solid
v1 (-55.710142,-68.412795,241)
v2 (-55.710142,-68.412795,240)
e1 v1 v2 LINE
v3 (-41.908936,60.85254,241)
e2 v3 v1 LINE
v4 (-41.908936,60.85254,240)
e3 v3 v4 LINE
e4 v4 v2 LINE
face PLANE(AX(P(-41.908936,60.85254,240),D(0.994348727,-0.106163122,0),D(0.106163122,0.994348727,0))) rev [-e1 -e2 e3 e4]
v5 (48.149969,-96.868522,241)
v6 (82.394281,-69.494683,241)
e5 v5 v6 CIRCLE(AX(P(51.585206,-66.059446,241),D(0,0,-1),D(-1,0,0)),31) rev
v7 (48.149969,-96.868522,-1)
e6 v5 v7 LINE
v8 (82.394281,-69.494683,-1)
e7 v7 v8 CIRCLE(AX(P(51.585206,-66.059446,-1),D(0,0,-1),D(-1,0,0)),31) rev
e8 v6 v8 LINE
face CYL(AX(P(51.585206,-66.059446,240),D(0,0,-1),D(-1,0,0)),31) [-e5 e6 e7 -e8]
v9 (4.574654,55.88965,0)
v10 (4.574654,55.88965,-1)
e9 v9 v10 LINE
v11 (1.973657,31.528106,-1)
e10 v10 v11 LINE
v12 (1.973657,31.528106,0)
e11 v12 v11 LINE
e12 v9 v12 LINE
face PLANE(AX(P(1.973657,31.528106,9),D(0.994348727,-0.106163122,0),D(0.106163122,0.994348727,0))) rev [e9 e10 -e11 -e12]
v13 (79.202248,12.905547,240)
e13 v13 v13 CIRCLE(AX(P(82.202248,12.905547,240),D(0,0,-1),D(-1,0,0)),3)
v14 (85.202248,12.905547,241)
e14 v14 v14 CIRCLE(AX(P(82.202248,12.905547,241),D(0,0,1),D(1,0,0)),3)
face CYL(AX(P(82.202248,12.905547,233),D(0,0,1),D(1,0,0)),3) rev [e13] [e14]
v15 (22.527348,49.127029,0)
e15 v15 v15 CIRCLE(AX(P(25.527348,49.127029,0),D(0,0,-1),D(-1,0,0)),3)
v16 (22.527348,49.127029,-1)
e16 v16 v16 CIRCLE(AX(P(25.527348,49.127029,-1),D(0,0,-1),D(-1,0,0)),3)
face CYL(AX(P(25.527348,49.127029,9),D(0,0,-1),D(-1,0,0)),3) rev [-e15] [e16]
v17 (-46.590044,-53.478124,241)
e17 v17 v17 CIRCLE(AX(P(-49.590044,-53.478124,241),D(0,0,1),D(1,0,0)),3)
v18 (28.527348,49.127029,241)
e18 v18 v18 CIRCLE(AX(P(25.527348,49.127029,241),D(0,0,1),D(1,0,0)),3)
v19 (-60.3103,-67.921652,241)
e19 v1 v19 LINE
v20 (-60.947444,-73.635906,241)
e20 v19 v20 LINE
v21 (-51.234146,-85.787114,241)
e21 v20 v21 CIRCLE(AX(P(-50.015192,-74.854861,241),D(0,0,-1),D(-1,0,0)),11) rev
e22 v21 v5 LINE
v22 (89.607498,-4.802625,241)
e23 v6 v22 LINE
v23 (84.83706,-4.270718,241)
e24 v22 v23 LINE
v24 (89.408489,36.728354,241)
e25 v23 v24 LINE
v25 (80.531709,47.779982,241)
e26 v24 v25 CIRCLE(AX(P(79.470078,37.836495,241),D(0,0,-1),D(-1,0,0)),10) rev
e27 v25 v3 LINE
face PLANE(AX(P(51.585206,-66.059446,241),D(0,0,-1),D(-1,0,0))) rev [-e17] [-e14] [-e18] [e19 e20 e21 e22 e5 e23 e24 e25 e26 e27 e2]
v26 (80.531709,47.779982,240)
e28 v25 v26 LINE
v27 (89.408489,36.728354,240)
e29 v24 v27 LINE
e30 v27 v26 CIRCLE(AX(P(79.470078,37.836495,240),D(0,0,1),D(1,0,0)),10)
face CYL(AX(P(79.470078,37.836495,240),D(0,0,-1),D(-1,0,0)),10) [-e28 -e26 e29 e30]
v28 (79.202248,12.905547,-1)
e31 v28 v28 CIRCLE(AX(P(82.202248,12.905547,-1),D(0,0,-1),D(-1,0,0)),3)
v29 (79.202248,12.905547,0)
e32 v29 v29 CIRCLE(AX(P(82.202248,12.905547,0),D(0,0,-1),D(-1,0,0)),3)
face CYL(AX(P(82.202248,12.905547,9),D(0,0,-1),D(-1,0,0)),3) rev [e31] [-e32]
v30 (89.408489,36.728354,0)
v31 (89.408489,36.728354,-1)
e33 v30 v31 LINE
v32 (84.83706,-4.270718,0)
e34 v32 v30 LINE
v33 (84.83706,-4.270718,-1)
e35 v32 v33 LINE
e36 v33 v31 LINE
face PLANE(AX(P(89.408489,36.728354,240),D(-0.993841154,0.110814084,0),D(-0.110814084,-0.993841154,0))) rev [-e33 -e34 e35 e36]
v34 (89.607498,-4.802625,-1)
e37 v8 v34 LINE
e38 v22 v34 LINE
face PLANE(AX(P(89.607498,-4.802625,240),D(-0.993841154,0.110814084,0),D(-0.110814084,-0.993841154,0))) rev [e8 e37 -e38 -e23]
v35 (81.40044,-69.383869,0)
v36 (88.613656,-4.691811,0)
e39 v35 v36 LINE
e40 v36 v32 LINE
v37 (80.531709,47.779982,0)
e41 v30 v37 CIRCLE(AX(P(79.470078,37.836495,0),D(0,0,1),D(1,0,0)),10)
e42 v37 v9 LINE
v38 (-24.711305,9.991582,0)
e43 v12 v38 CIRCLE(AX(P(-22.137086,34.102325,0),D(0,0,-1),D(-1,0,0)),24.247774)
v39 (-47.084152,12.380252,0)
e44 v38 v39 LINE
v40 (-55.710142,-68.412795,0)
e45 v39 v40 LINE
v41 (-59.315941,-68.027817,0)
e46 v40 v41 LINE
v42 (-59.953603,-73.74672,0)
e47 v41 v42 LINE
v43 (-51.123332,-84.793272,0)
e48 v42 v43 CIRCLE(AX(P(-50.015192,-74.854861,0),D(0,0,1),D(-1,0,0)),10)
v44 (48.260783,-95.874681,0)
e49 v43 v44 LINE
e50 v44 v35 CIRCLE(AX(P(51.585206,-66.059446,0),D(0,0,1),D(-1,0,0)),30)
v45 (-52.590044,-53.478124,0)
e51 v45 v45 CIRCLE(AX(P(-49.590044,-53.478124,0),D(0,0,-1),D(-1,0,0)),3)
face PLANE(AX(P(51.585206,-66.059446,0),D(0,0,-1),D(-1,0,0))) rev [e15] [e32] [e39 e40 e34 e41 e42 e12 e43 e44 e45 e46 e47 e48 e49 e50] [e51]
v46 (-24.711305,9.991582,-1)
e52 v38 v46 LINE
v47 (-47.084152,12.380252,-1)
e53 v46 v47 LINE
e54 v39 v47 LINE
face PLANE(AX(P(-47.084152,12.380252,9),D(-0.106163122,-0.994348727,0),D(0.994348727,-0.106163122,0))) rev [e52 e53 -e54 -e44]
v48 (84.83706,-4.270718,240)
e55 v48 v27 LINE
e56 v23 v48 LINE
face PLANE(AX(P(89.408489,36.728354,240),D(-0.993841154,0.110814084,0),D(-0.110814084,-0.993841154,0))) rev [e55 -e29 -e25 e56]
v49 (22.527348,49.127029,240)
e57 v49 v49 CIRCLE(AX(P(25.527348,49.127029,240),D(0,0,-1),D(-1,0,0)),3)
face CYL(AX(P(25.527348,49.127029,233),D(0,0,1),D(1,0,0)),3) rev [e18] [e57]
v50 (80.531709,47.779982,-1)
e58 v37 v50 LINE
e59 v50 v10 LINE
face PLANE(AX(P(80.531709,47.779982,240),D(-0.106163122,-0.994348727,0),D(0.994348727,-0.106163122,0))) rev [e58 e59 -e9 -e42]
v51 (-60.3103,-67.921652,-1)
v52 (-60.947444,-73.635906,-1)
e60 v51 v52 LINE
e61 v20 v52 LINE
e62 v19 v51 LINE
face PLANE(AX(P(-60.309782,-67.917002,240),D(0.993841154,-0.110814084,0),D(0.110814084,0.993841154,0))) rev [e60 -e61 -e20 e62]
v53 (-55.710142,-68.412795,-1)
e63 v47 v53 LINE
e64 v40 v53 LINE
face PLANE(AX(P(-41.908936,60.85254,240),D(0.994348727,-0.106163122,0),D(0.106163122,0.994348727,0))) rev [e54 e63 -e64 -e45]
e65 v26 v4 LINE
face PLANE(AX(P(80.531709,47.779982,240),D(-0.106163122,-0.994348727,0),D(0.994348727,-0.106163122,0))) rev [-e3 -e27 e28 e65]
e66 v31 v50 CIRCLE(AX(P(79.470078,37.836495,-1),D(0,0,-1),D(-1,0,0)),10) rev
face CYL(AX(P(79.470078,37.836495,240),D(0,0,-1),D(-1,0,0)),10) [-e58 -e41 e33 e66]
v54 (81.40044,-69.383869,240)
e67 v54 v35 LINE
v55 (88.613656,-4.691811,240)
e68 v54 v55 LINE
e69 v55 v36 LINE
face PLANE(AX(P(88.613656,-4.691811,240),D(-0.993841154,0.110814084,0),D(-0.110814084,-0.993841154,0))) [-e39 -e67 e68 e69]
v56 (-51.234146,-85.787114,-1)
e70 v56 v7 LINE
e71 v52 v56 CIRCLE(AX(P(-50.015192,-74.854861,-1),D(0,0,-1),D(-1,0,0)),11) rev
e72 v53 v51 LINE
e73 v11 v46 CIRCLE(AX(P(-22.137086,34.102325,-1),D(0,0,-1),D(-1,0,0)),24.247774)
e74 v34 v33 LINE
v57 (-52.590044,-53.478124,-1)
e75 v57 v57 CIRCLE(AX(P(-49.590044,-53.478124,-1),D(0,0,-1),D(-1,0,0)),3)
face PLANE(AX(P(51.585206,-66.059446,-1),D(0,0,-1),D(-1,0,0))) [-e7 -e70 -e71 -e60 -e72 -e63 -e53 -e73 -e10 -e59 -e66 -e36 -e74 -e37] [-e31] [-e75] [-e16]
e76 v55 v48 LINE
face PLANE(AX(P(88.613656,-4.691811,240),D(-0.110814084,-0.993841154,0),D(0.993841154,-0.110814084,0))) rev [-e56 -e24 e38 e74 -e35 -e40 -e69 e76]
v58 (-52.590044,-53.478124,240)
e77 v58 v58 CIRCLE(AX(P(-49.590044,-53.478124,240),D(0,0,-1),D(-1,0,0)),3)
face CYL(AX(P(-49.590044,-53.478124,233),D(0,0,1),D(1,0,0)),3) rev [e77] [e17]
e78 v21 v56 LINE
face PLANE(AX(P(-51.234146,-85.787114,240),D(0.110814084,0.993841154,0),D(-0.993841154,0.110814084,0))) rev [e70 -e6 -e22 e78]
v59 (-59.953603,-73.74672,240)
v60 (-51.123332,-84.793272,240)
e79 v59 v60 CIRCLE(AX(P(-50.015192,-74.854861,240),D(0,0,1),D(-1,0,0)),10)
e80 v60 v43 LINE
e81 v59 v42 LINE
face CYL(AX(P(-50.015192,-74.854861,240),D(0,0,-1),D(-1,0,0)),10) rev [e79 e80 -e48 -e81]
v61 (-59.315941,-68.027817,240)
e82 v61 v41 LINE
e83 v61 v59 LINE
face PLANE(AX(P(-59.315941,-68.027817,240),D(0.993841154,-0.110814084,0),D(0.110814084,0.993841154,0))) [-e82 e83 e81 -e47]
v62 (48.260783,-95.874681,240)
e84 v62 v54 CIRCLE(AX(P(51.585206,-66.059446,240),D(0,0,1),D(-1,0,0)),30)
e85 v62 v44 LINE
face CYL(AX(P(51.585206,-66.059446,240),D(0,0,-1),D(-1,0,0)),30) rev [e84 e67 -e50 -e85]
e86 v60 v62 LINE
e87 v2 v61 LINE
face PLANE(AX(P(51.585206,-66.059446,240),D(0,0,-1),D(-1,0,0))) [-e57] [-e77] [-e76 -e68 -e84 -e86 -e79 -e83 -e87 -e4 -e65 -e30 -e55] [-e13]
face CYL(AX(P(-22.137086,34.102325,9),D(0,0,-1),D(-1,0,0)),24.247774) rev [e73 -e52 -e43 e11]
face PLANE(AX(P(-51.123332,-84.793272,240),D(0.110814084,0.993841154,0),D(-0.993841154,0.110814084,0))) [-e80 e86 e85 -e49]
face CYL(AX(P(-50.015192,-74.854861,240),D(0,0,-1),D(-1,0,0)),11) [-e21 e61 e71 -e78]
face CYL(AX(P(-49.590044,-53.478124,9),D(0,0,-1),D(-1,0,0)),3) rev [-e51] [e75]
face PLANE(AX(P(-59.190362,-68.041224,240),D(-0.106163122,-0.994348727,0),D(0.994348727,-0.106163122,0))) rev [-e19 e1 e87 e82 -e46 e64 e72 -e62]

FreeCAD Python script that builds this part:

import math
import FreeCAD as App
import Part
import Sketcher
Q = App.Units.Quantity


def faces_at(feature, points):
    """Names of the faces that lie closest to the given points."""
    faces = feature.Shape.Faces
    near = lambda p: min(range(len(faces)), key=lambda i: faces[i].distToShape(Part.Vertex(*p))[0])
    return sorted({f"Face{near(p) + 1}" for p in points})

doc = App.newDocument("Part")
body = doc.addObject("PartDesign::Body", "Body")

# Sketch on XY plane
sketch1 = body.newObject("Sketcher::SketchObject", "Sketch")
sketch1.AttachmentSupport = (doc.getObject("XY_Plane"), [""])
sketch1.MapMode = "FlatFace"
sketch1.addGeometry([
    Part.LineSegment(App.Vector(-59.315941, -68.027817, 0), App.Vector(-59.953603, -73.74672, 0)),  # 0
    Part.ArcOfCircle(Part.Circle(App.Vector(-50.015192, -74.854861, 0), App.Vector(0, 0, 1), 10), math.radians(173.637754), math.radians(263.637754)),  # 1
    Part.LineSegment(App.Vector(-51.123332, -84.793272, 0), App.Vector(48.260783, -95.874681, 0)),  # 2
    Part.ArcOfCircle(Part.Circle(App.Vector(51.585206, -66.059446, 0), App.Vector(0, 0, 1), 30), math.radians(-96.362246), math.radians(-6.362246)),  # 3
    Part.LineSegment(App.Vector(81.40044, -69.383869, 0), App.Vector(88.613656, -4.691811, 0)),  # 4
    Part.LineSegment(App.Vector(88.613656, -4.691811, 0), App.Vector(84.83706, -4.270718, 0)),  # 5
    Part.LineSegment(App.Vector(84.83706, -4.270718, 0), App.Vector(89.408489, 36.728354, 0)),  # 6
    Part.ArcOfCircle(Part.Circle(App.Vector(79.470078, 37.836495, 0), App.Vector(0, 0, 1), 10), math.radians(-6.362246), math.radians(83.905817)),  # 7
    Part.LineSegment(App.Vector(80.531709, 47.779982, 0), App.Vector(-41.908936, 60.85254, 0)),  # 8
    Part.LineSegment(App.Vector(-41.908936, 60.85254, 0), App.Vector(-55.710142, -68.412795, 0)),  # 9
    Part.LineSegment(App.Vector(-55.710142, -68.412795, 0), App.Vector(-59.315941, -68.027817, 0)),  # 10
], False)
sketch1.addConstraint([
    Sketcher.Constraint("Tangent", 0, 2, 1, 1),
    Sketcher.Constraint("Tangent", 1, 2, 2, 1),
    Sketcher.Constraint("Tangent", 2, 2, 3, 1),
    Sketcher.Constraint("Tangent", 3, 2, 4, 1),
    Sketcher.Constraint("Coincident", 4, 2, 5, 1),
    Sketcher.Constraint("Coincident", 5, 2, 6, 1),
    Sketcher.Constraint("Tangent", 6, 2, 7, 1),
    Sketcher.Constraint("Tangent", 7, 2, 8, 1),
    Sketcher.Constraint("Coincident", 8, 2, 9, 1),
    Sketcher.Constraint("Coincident", 9, 2, 10, 1),
    Sketcher.Constraint("Coincident", 10, 2, 0, 1),
    Sketcher.Constraint("Equal", 1, 7),
    Sketcher.Constraint("Perpendicular", 0, 2),
    Sketcher.Constraint("Perpendicular", 2, 4),
    Sketcher.Constraint("Perpendicular", 4, 5),
    Sketcher.Constraint("Perpendicular", 5, 6),
    Sketcher.Constraint("Perpendicular", 8, 9),
    Sketcher.Constraint("Perpendicular", 9, 10),
    Sketcher.Constraint("Radius", 1, Q("10 mm")),
    Sketcher.Constraint("Radius", 3, Q("30 mm")),
    Sketcher.Constraint("Distance", 2, Q("100 mm")),
    Sketcher.Constraint("Distance", 9, Q("130 mm")),
    Sketcher.Constraint("Distance", 5, Q("3.8 mm")),
    Sketcher.Constraint("DistanceY", 3, 3, 6, 2, Q("102.7878 mm")),
    Sketcher.Constraint("DistanceY", 5, 2, 7, 2, Q("52.050699 mm")),
    Sketcher.Constraint("DistanceY", 1, 3, 8, 2, Q("135.7074 mm")),
    Sketcher.Constraint("DistanceX", 10, 2, 9, 2, Q("3.605799 mm")),
    Sketcher.Constraint("DistanceX", 1, 3, -1, 1, Q("50.015192 mm")),
    Sketcher.Constraint("DistanceY", 1, 3, -1, 1, Q("74.854861 mm")),
    Sketcher.Constraint("DistanceY", 0, 2, -1, 1, Q("73.74672 mm")),
])
pad1 = body.newObject("PartDesign::Pad", "Pad")
pad1.Profile = sketch1
pad1.Length = 240
doc.recompute()

thickness = body.newObject("PartDesign::Thickness", "Thickness")
thickness.Base = (pad1, faces_at(pad1, [
    (-48.81, -3.78, 120),
    (19.311, 54.316, 120),
    (87.267, 44.099, 120),
    (87.123, 16.229, 120),
    (86.725, -4.481, 120),
    (-57.513, -68.22, 120),
]))
thickness.Value = 1
thickness.Reversed = False
thickness.Join = "Intersection"

# Sketch on XY plane
sketch2 = body.newObject("Sketcher::SketchObject", "Sketch001")
sketch2.AttachmentSupport = (doc.getObject("XY_Plane"), [""])
sketch2.MapMode = "FlatFace"
sketch2.AttachmentOffset = App.Placement(App.Vector(0, 0, -1), App.Rotation())
sketch2.addGeometry([
    Part.LineSegment(App.Vector(-24.711305, 9.991582, 0), App.Vector(-47.084152, 12.380252, 0)),  # 0
    Part.LineSegment(App.Vector(-47.084152, 12.380252, 0), App.Vector(-41.908936, 60.85254, 0)),  # 1
    Part.LineSegment(App.Vector(-41.908936, 60.85254, 0), App.Vector(4.574654, 55.88965, 0)),  # 2
    Part.LineSegment(App.Vector(4.574654, 55.88965, 0), App.Vector(1.973657, 31.528106, 0)),  # 3
    Part.ArcOfCircle(Part.Circle(App.Vector(-22.137086, 34.102325, 0), App.Vector(0, 0, 1), 24.247774), math.radians(-96.094183), math.radians(-6.094183)),  # 4
], False)
sketch2.addConstraint([
    Sketcher.Constraint("Coincident", 0, 2, 1, 1),
    Sketcher.Constraint("Coincident", 1, 2, 2, 1),
    Sketcher.Constraint("Coincident", 2, 2, 3, 1),
    Sketcher.Constraint("Tangent", 3, 2, 4, 2),
    Sketcher.Constraint("Tangent", 4, 1, 0, 1),
    Sketcher.Constraint("Perpendicular", 0, 1),
    Sketcher.Constraint("Perpendicular", 1, 2),
    Sketcher.Constraint("Perpendicular", 2, 3),
    Sketcher.Constraint("Distance", 0, Q("22.5 mm")),
    Sketcher.Constraint("Distance", 3, Q("24.5 mm")),
    Sketcher.Constraint("Radius", 4, Q("24.247774 mm")),
    Sketcher.Constraint("DistanceX", 0, 2, -1, 1, Q("47.084152 mm")),
    Sketcher.Constraint("DistanceY", -1, 1, 1, 2, Q("60.85254 mm")),
    Sketcher.Constraint("DistanceY", -1, 1, 2, 2, Q("55.88965 mm")),
])
pocket1 = body.newObject("PartDesign::Pocket", "Pocket")
pocket1.Profile = sketch2
pocket1.Length = 10
pocket1.Reversed = True

# Sketch on XY plane
sketch3 = body.newObject("Sketcher::SketchObject", "Sketch002")
sketch3.AttachmentSupport = (doc.getObject("XY_Plane"), [""])
sketch3.MapMode = "FlatFace"
sketch3.AttachmentOffset = App.Placement(App.Vector(0, 0, -1), App.Rotation())
sketch3.addGeometry([
    Part.Circle(App.Vector(25.527348, 49.127029, 0), App.Vector(0, 0, 1), 3),
    Part.Circle(App.Vector(82.202248, 12.905547, 0), App.Vector(0, 0, 1), 3),
    Part.Circle(App.Vector(-49.590044, -53.478124, 0), App.Vector(0, 0, 1), 3),
], False)
sketch3.addConstraint([
    Sketcher.Constraint("Equal", 0, 1),
    Sketcher.Constraint("Equal", 1, 2),
    Sketcher.Constraint("Diameter", 0, Q("6 mm")),
    Sketcher.Constraint("DistanceX", 0, 3, 1, 3, Q("56.6749 mm")),
    Sketcher.Constraint("DistanceX", -1, 1, 0, 3, Q("25.527348 mm")),
    Sketcher.Constraint("DistanceY", -1, 1, 0, 3, Q("49.127029 mm")),
    Sketcher.Constraint("DistanceY", 1, 3, 0, 3, Q("36.221482 mm")),
    Sketcher.Constraint("DistanceX", 2, 3, 1, 3, Q("131.792292 mm")),
    Sketcher.Constraint("DistanceY", 2, 3, 1, 3, Q("66.383671 mm")),
])
pocket2 = body.newObject("PartDesign::Pocket", "Pocket001")
pocket2.Profile = sketch3
pocket2.Length = 10
pocket2.Reversed = True

# Sketch on XY plane
sketch4 = body.newObject("Sketcher::SketchObject", "Sketch003")
sketch4.AttachmentSupport = (doc.getObject("XY_Plane"), [""])
sketch4.MapMode = "FlatFace"
sketch4.AttachmentOffset = App.Placement(App.Vector(0, 0, 233), App.Rotation())
sketch4.addGeometry([
    Part.Circle(App.Vector(25.527348, 49.127029, 0), App.Vector(0, 0, 1), 3),
    Part.Circle(App.Vector(82.202248, 12.905547, 0), App.Vector(0, 0, 1), 3),
    Part.Circle(App.Vector(-49.590044, -53.478124, 0), App.Vector(0, 0, 1), 3),
], False)
sketch4.addConstraint([
    Sketcher.Constraint("Equal", 0, 1),
    Sketcher.Constraint("Equal", 1, 2),
    Sketcher.Constraint("Diameter", 0, Q("6 mm")),
    Sketcher.Constraint("DistanceX", 0, 3, 1, 3, Q("56.6749 mm")),
    Sketcher.Constraint("DistanceX", -1, 1, 0, 3, Q("25.527348 mm")),
    Sketcher.Constraint("DistanceY", -1, 1, 0, 3, Q("49.127029 mm")),
    Sketcher.Constraint("DistanceY", 1, 3, 0, 3, Q("36.221482 mm")),
    Sketcher.Constraint("DistanceX", 2, 3, 1, 3, Q("131.792292 mm")),
    Sketcher.Constraint("DistanceY", 2, 3, 1, 3, Q("66.383671 mm")),
])
pocket3 = body.newObject("PartDesign::Pocket", "Pocket002")
pocket3.Profile = sketch4
pocket3.Length = 8
pocket3.Reversed = True

doc.recompute()
